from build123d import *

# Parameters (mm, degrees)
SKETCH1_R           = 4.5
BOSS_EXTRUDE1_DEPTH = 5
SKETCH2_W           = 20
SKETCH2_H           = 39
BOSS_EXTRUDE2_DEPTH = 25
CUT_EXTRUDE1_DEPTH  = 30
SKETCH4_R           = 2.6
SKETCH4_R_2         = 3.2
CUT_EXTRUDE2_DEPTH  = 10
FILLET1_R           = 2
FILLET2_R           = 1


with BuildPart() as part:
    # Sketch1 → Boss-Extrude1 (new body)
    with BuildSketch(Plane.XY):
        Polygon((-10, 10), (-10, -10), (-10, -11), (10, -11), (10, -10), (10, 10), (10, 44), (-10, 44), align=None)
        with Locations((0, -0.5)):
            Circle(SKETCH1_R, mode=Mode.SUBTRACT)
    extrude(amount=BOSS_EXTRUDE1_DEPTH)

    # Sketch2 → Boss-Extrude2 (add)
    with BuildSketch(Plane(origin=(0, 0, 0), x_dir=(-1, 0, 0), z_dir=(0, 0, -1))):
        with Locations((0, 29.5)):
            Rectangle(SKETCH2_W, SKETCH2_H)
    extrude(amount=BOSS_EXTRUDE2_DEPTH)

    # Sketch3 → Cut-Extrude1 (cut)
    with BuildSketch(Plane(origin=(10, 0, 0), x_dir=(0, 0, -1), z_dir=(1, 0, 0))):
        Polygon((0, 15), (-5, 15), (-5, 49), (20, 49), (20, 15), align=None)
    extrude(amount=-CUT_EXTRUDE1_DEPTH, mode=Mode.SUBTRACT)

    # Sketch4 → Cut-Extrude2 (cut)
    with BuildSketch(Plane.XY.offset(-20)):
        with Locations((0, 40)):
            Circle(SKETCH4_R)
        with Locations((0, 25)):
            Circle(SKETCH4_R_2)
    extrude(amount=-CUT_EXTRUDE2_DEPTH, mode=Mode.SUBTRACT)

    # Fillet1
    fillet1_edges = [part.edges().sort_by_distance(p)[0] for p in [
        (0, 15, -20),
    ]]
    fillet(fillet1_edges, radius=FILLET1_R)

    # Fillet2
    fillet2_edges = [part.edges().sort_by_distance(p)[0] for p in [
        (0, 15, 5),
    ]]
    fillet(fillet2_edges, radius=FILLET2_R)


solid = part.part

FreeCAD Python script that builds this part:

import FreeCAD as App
import Part
import Sketcher


def edges_at(feature, points):
    """Names of the edges that pass closest to the given points."""
    edges = feature.Shape.Edges
    near = lambda p: min(range(len(edges)), key=lambda i: edges[i].distToShape(Part.Vertex(*p))[0])
    return sorted({f"Edge{near(p) + 1}" for p in points})

doc = App.newDocument("Part")
body = doc.addObject("PartDesign::Body", "Body")

# Sketch on XY plane
sketch1 = doc.addObject("Sketcher::SketchObject", "Sketch")
body.addObject(sketch1)
sketch1.AttachmentSupport = (doc.XY_Plane, [""])
sketch1.MapMode = "FlatFace"
sketch1.addGeometry([
    Part.LineSegment(App.Vector(-10, -11, 0), App.Vector(10, -11, 0)),  # 0
    Part.LineSegment(App.Vector(10, -11, 0), App.Vector(10, 44, 0)),  # 1
    Part.LineSegment(App.Vector(10, 44, 0), App.Vector(-10, 44, 0)),  # 2
    Part.LineSegment(App.Vector(-10, 44, 0), App.Vector(-10, -11, 0)),  # 3
    Part.Circle(App.Vector(0, -0.5, 0), App.Vector(0, 0, 1), 4.5),  # 4
], False)
sketch1.addConstraint([
    Sketcher.Constraint("Coincident", 0, 2, 1, 1),
    Sketcher.Constraint("Coincident", 1, 2, 2, 1),
    Sketcher.Constraint("Coincident", 2, 2, 3, 1),
    Sketcher.Constraint("Coincident", 3, 2, 0, 1),
    Sketcher.Constraint("Horizontal", 0),
    Sketcher.Constraint("Vertical", 1),
    Sketcher.Constraint("Horizontal", 2),
    Sketcher.Constraint("Vertical", 3),
    Sketcher.Constraint("PointOnObject", 4, 3, -2),
    Sketcher.Constraint("Diameter", 4, 9.0),
    Sketcher.Constraint("DistanceX", 0, 1, 0, 2, 20.0),
    Sketcher.Constraint("DistanceY", 1, 1, 1, 2, 55.0),
    Sketcher.Constraint("DistanceX", -1, 1, 0, 2, 10.0),
    Sketcher.Constraint("DistanceY", 0, 2, -1, 1, 11.0),
    Sketcher.Constraint("DistanceY", 4, 3, -1, 1, 0.5),
])
pad1 = doc.addObject("PartDesign::Pad", "Pad")
body.addObject(pad1)
pad1.Profile = sketch1
pad1.Length = 5

# Sketch on XY plane
sketch2 = doc.addObject("Sketcher::SketchObject", "Sketch001")
body.addObject(sketch2)
sketch2.AttachmentSupport = (doc.XY_Plane, [""])
sketch2.MapMode = "FlatFace"
sketch2.addGeometry([
    Part.LineSegment(App.Vector(10, 49, 0), App.Vector(10, 10, 0)),
    Part.LineSegment(App.Vector(10, 10, 0), App.Vector(-10, 10, 0)),
    Part.LineSegment(App.Vector(-10, 10, 0), App.Vector(-10, 49, 0)),
    Part.LineSegment(App.Vector(-10, 49, 0), App.Vector(10, 49, 0)),
], False)
sketch2.addConstraint([
    Sketcher.Constraint("Coincident", 0, 2, 1, 1),
    Sketcher.Constraint("Coincident", 1, 2, 2, 1),
    Sketcher.Constraint("Coincident", 2, 2, 3, 1),
    Sketcher.Constraint("Coincident", 3, 2, 0, 1),
    Sketcher.Constraint("Vertical", 0),
    Sketcher.Constraint("Horizontal", 1),
    Sketcher.Constraint("Vertical", 2),
    Sketcher.Constraint("Horizontal", 3),
    Sketcher.Constraint("DistanceX", 1, 2, 1, 1, 20.0),
    Sketcher.Constraint("DistanceY", 0, 2, 0, 1, 39.0),
    Sketcher.Constraint("DistanceX", -1, 1, 0, 2, 10.0),
    Sketcher.Constraint("DistanceY", -1, 1, 0, 2, 10.0),
])
pad2 = doc.addObject("PartDesign::Pad", "Pad001")
body.addObject(pad2)
pad2.Profile = sketch2
pad2.Length = 25
pad2.Reversed = True

# Sketch on YZ plane
sketch3 = doc.addObject("Sketcher::SketchObject", "Sketch002")
body.addObject(sketch3)
sketch3.AttachmentSupport = (doc.YZ_Plane, [""])
sketch3.MapMode = "FlatFace"
sketch3.AttachmentOffset = App.Placement(App.Vector(0, 0, 10), App.Rotation())
sketch3.addGeometry([
    Part.LineSegment(App.Vector(15, 5, 0), App.Vector(15, -20, 0)),
    Part.LineSegment(App.Vector(15, -20, 0), App.Vector(49, -20, 0)),
    Part.LineSegment(App.Vector(49, -20, 0), App.Vector(49, 5, 0)),
    Part.LineSegment(App.Vector(49, 5, 0), App.Vector(15, 5, 0)),
], False)
sketch3.addConstraint([
    Sketcher.Constraint("Coincident", 0, 2, 1, 1),
    Sketcher.Constraint("Coincident", 1, 2, 2, 1),
    Sketcher.Constraint("Coincident", 2, 2, 3, 1),
    Sketcher.Constraint("Coincident", 3, 2, 0, 1),
    Sketcher.Constraint("Vertical", 0),
    Sketcher.Constraint("Horizontal", 1),
    Sketcher.Constraint("Vertical", 2),
    Sketcher.Constraint("Horizontal", 3),
    Sketcher.Constraint("DistanceX", 1, 1, 1, 2, 34.0),
    Sketcher.Constraint("DistanceY", 0, 2, 0, 1, 25.0),
    Sketcher.Constraint("DistanceX", -1, 1, 0, 2, 15.0),
    Sketcher.Constraint("DistanceY", 0, 2, -1, 1, 20.0),
])
pocket1 = doc.addObject("PartDesign::Pocket", "Pocket")
body.addObject(pocket1)
pocket1.Profile = sketch3
pocket1.Length = 30

# Sketch on XY plane
sketch4 = doc.addObject("Sketcher::SketchObject", "Sketch003")
body.addObject(sketch4)
sketch4.AttachmentSupport = (doc.XY_Plane, [""])
sketch4.MapMode = "FlatFace"
sketch4.AttachmentOffset = App.Placement(App.Vector(0, 0, -20), App.Rotation())
sketch4.addGeometry([
    Part.Circle(App.Vector(0, 40, 0), App.Vector(0, 0, 1), 2.6),
    Part.Circle(App.Vector(0, 25, 0), App.Vector(0, 0, 1), 3.2),
], False)
sketch4.addConstraint([
    Sketcher.Constraint("PointOnObject", 0, 3, -2),
    Sketcher.Constraint("PointOnObject", 1, 3, -2),
    Sketcher.Constraint("Diameter", 0, 5.2),
    Sketcher.Constraint("Diameter", 1, 6.4),
    Sketcher.Constraint("DistanceY", -1, 1, 0, 3, 40.0),
    Sketcher.Constraint("DistanceY", -1, 1, 1, 3, 25.0),
])
pocket2 = doc.addObject("PartDesign::Pocket", "Pocket001")
body.addObject(pocket2)
pocket2.Profile = sketch4
pocket2.Length = 10
doc.recompute()

fillet = doc.addObject("PartDesign::Fillet", "Fillet")
body.addObject(fillet)
fillet.Base = (pocket2, edges_at(pocket2, [(0, 15, -20)]))
fillet.Radius = 2
doc.recompute()

fillet2 = doc.addObject("PartDesign::Fillet", "Fillet001")
body.addObject(fillet2)
fillet2.Base = (fillet, edges_at(fillet, [(0, 15, 5)]))
fillet2.Radius = 1

doc.recompute()
